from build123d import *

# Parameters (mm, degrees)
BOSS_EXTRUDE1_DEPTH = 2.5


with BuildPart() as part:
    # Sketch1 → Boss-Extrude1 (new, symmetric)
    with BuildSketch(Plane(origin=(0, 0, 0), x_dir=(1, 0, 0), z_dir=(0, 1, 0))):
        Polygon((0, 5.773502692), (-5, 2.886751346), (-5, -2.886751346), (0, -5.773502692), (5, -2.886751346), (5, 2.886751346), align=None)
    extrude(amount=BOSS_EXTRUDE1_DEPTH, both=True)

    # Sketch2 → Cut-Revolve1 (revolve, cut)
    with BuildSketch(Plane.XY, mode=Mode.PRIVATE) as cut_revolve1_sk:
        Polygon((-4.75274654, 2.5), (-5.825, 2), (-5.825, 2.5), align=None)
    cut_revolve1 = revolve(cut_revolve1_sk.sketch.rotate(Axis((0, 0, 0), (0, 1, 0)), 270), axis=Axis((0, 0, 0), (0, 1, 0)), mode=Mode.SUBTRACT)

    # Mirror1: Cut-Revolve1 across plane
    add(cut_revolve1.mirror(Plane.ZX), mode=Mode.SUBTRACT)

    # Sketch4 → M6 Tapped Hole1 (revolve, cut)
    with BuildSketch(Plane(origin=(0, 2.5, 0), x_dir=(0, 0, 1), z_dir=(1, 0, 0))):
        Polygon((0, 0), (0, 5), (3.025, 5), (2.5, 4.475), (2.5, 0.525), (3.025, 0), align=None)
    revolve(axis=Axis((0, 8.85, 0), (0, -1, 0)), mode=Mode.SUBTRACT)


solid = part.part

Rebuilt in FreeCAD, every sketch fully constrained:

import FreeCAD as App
import Part
import Sketcher

V = App.Vector
Q = App.Units.Quantity

doc = App.newDocument("Part")
params = doc.addObject("Spreadsheet::Sheet", "Params")
for row, (alias, value) in enumerate([
    ("pad1_length", "5 mm"),
    ("sketch2_height", "0.5 mm"),
    ("groove_angle", "360 deg"),
    ("sketch3_width", "5 mm"),
    ("sketch3_width2", "3.95 mm"),
    ("groove2_angle", "360 deg"),
], start=1):
    params.set(f"A{row}", alias)
    params.set(f"B{row}", "=" + value)
    params.setAlias(f"B{row}", alias)

body = doc.addObject("PartDesign::Body", "Body")

sketch1 = body.newObject("Sketcher::SketchObject", "Sketch")
sketch1.AttachmentSupport = (doc.getObject("XZ_Plane"), [""])
sketch1.MapMode = "FlatFace"
sketch1.addGeometry(Part.LineSegment(V(0, -6, 0), V(-5, -3, 0)), False)
sketch1.addGeometry(Part.LineSegment(V(-5, -3, 0), V(-5, 3, 0)), False)
sketch1.addGeometry(Part.LineSegment(V(-5, 3, 0), V(0, 6, 0)), False)
sketch1.addGeometry(Part.LineSegment(V(0, 6, 0), V(5, 3, 0)), False)
sketch1.addGeometry(Part.LineSegment(V(5, 3, 0), V(5, -3, 0)), False)
sketch1.addGeometry(Part.LineSegment(V(5, -3, 0), V(0, -6, 0)), False)
sketch1.addConstraint(Sketcher.Constraint("Coincident", 0, 2, 1, 1))
sketch1.addConstraint(Sketcher.Constraint("Coincident", 1, 2, 2, 1))
sketch1.addConstraint(Sketcher.Constraint("Coincident", 2, 2, 3, 1))
sketch1.addConstraint(Sketcher.Constraint("Coincident", 3, 2, 4, 1))
sketch1.addConstraint(Sketcher.Constraint("Coincident", 4, 2, 5, 1))
sketch1.addConstraint(Sketcher.Constraint("Coincident", 5, 2, 0, 1))
sketch1.addConstraint(Sketcher.Constraint("Vertical", 1))
sketch1.addConstraint(Sketcher.Constraint("Vertical", 4))
sketch1.addConstraint(Sketcher.Constraint("Symmetric", 0, 2, 3, 2, -1, 1))
sketch1.addConstraint(Sketcher.Constraint("Symmetric", 2, 2, 5, 2, -1, 1))
sketch1.addConstraint(Sketcher.Constraint("PointOnObject", 2, 2, -2))
sketch1.addConstraint(Sketcher.Constraint("Parallel", 2, 5))
sketch1.addConstraint(Sketcher.Constraint("Horizontal", 1, 2, 3, 2))
sketch1.addConstraint(Sketcher.Constraint("Angle", 0, Q("150 deg")))
sketch1.addConstraint(Sketcher.Constraint("DistanceX", 0, 2, -1, 1, Q("5 mm")))
sketch1.addConstraint(Sketcher.Constraint("DistanceY", 1, 1, 1, 2, Q("5.773503 mm")))
pad1 = body.newObject("PartDesign::Pad", "Pad")
pad1.Profile = sketch1
pad1.setExpression("Length", "Params.pad1_length")
pad1.Midplane = True

sketch2 = body.newObject("Sketcher::SketchObject", "Sketch001")
sketch2.AttachmentSupport = (doc.getObject("XY_Plane"), [""])
sketch2.MapMode = "FlatFace"
sketch2.addGeometry(Part.LineSegment(V(-5.8, 2, 0), V(-4.8, 2.5, 0)), False)
sketch2.addGeometry(Part.LineSegment(V(-4.8, 2.5, 0), V(-5.8, 2.5, 0)), False)
sketch2.addGeometry(Part.LineSegment(V(-5.8, 2.5, 0), V(-5.8, 2, 0)), False)
sketch2.addConstraint(Sketcher.Constraint("Coincident", 0, 2, 1, 1))
sketch2.addConstraint(Sketcher.Constraint("Coincident", 1, 2, 2, 1))
sketch2.addConstraint(Sketcher.Constraint("Coincident", 2, 2, 0, 1))
sketch2.addConstraint(Sketcher.Constraint("Horizontal", 1))
sketch2.addConstraint(Sketcher.Constraint("Vertical", 2))
sketch2.addConstraint(Sketcher.Constraint("Angle", 0, Q("25 deg")))
sketch2.addConstraint(Sketcher.Constraint("DistanceY", 2, 2, 2, 1, Q("0.5 mm")))
sketch2.addConstraint(Sketcher.Constraint("DistanceY", -1, 1, 2, 2, Q("2 mm")))
sketch2.addConstraint(Sketcher.Constraint("DistanceX", 1, 2, -1, 1, Q("5.825 mm")))
sketch2.setExpression("Constraints[6]", "Params.sketch2_height")
groove = body.newObject("PartDesign::Groove", "Groove")
groove.Profile = sketch2
groove.ReferenceAxis = (sketch2, ["V_Axis"])
groove.setExpression("Angle", "Params.groove_angle")
doc.recompute()

mirrored = body.newObject("PartDesign::Mirrored", "Mirrored")
mirrored.Originals = [groove]
mirrored.MirrorPlane = (doc.getObject("XZ_Plane"), [""])
body.Tip = mirrored

sketch3 = body.newObject("Sketcher::SketchObject", "Sketch002")
sketch3.AttachmentSupport = (doc.getObject("YZ_Plane"), [""])
sketch3.MapMode = "FlatFace"
sketch3.addGeometry(Part.LineSegment(V(-2.5, 0, 0), V(2.5, 0, 0)), False)
sketch3.addGeometry(Part.LineSegment(V(2.5, 0, 0), V(2.5, 3, 0)), False)
sketch3.addGeometry(Part.LineSegment(V(2.5, 3, 0), V(2, 2.5, 0)), False)
sketch3.addGeometry(Part.LineSegment(V(2, 2.5, 0), V(-2, 2.5, 0)), False)
sketch3.addGeometry(Part.LineSegment(V(-2, 2.5, 0), V(-2.5, 3, 0)), False)
sketch3.addGeometry(Part.LineSegment(V(-2.5, 3, 0), V(-2.5, 0, 0)), False)
sketch3.addConstraint(Sketcher.Constraint("Coincident", 0, 2, 1, 1))
sketch3.addConstraint(Sketcher.Constraint("Coincident", 1, 2, 2, 1))
sketch3.addConstraint(Sketcher.Constraint("Coincident", 2, 2, 3, 1))
sketch3.addConstraint(Sketcher.Constraint("Coincident", 3, 2, 4, 1))
sketch3.addConstraint(Sketcher.Constraint("Coincident", 4, 2, 5, 1))
sketch3.addConstraint(Sketcher.Constraint("Coincident", 5, 2, 0, 1))
sketch3.addConstraint(Sketcher.Constraint("Horizontal", 0))
sketch3.addConstraint(Sketcher.Constraint("Vertical", 1))
sketch3.addConstraint(Sketcher.Constraint("Horizontal", 3))
sketch3.addConstraint(Sketcher.Constraint("Vertical", 5))
sketch3.addConstraint(Sketcher.Constraint("Symmetric", 0, 2, 5, 2, -1, 1))
sketch3.addConstraint(Sketcher.Constraint("Perpendicular", 2, 4))
sketch3.addConstraint(Sketcher.Constraint("Horizontal", 1, 2, 4, 2))
sketch3.addConstraint(Sketcher.Constraint("Equal", 2, 4))
sketch3.addConstraint(Sketcher.Constraint("DistanceX", 0, 1, 0, 2, Q("5 mm")))
sketch3.addConstraint(Sketcher.Constraint("DistanceX", 3, 2, 3, 1, Q("3.95 mm")))
sketch3.addConstraint(Sketcher.Constraint("DistanceY", -1, 1, 2, 2, Q("2.5 mm")))
sketch3.setExpression("Constraints[14]", "Params.sketch3_width")
sketch3.setExpression("Constraints[15]", "Params.sketch3_width2")
groove2 = body.newObject("PartDesign::Groove", "Groove001")
groove2.Profile = sketch3
groove2.ReferenceAxis = (sketch3, ["H_Axis"])
groove2.setExpression("Angle", "Params.groove2_angle")

doc.recompute()
